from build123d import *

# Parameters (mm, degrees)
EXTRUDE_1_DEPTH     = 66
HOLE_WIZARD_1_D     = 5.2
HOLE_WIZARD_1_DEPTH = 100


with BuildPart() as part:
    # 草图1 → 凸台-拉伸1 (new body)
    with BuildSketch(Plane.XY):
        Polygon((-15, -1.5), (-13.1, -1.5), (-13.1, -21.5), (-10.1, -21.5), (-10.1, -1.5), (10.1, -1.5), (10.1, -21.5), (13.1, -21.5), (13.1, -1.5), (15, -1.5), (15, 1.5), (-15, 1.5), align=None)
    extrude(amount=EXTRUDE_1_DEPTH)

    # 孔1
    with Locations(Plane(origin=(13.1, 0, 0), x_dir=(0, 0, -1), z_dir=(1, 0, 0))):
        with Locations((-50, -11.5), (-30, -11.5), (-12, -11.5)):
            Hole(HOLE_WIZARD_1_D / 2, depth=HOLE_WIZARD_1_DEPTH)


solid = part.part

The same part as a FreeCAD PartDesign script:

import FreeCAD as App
import Part
import Sketcher

V = App.Vector
Q = App.Units.Quantity


def add_polygon(sketch, points):
    """Adds a closed chain of lines whose ends are joined by coincident constraints."""
    first, n = sketch.GeometryCount, len(points)
    for a, b in zip(points, points[1:] + points[:1]):
        sketch.addGeometry(Part.LineSegment(App.Vector(*a, 0), App.Vector(*b, 0)), False)
    for i in range(n):
        sketch.addConstraint(Sketcher.Constraint("Coincident", first + i, 2, first + (i + 1) % n, 1))

doc = App.newDocument("Part")
body = doc.addObject("PartDesign::Body", "Body")

sketch1 = body.newObject("Sketcher::SketchObject", "Sketch")
sketch1.AttachmentSupport = (doc.getObject("XY_Plane"), [""])
sketch1.MapMode = "FlatFace"
add_polygon(sketch1, [(-15, -1.5), (-13.1, -1.5), (-13.1, -21.5), (-10.1, -21.5), (-10.1, -1.5), (10.1, -1.5), (10.1, -21.5), (13.1, -21.5), (13.1, -1.5), (15, -1.5), (15, 1.5), (-15, 1.5)])
sketch1.addConstraint(Sketcher.Constraint("Horizontal", 0))
sketch1.addConstraint(Sketcher.Constraint("Vertical", 1))
sketch1.addConstraint(Sketcher.Constraint("Horizontal", 2))
sketch1.addConstraint(Sketcher.Constraint("Vertical", 3))
sketch1.addConstraint(Sketcher.Constraint("Horizontal", 4))
sketch1.addConstraint(Sketcher.Constraint("Vertical", 5))
sketch1.addConstraint(Sketcher.Constraint("Horizontal", 6))
sketch1.addConstraint(Sketcher.Constraint("Vertical", 7))
sketch1.addConstraint(Sketcher.Constraint("Horizontal", 8))
sketch1.addConstraint(Sketcher.Constraint("Vertical", 9))
sketch1.addConstraint(Sketcher.Constraint("Horizontal", 10))
sketch1.addConstraint(Sketcher.Constraint("Vertical", 11))
sketch1.addConstraint(Sketcher.Constraint("Symmetric", 8, 2, 10, 2, -1, 1))
sketch1.addConstraint(Sketcher.Constraint("Symmetric", 2, 2, 5, 2, -2))
sketch1.addConstraint(Sketcher.Constraint("Symmetric", 0, 2, 7, 2, -2))
sketch1.addConstraint(Sketcher.Constraint("Horizontal", 0, 2, 3, 2))
sketch1.addConstraint(Sketcher.Constraint("Equal", 6, 9))
sketch1.addConstraint(Sketcher.Constraint("DistanceX", 2, 1, 2, 2, Q("3 mm")))
sketch1.addConstraint(Sketcher.Constraint("DistanceX", 10, 2, 10, 1, Q("30 mm")))
sketch1.addConstraint(Sketcher.Constraint("DistanceY", 1, 2, 1, 1, Q("20 mm")))
sketch1.addConstraint(Sketcher.Constraint("DistanceX", 0, 1, 0, 2, Q("1.9 mm")))
pad1 = body.newObject("PartDesign::Pad", "Pad")
pad1.Profile = sketch1
pad1.Length = 66

sketch2 = body.newObject("Sketcher::SketchObject", "Sketch001")
sketch2.AttachmentSupport = (doc.getObject("YZ_Plane"), [""])
sketch2.MapMode = "FlatFace"
sketch2.AttachmentOffset = App.Placement(V(0, 0, 13.1), App.Rotation())
sketch2.addGeometry(Part.Circle(V(-11.5, 50, 0), V(0, 0, 1), 2.6), False)
sketch2.addGeometry(Part.Circle(V(-11.5, 30, 0), V(0, 0, 1), 2.6), False)
sketch2.addGeometry(Part.Circle(V(-11.5, 12, 0), V(0, 0, 1), 2.6), False)
sketch2.addConstraint(Sketcher.Constraint("Equal", 0, 1))
sketch2.addConstraint(Sketcher.Constraint("Equal", 1, 2))
sketch2.addConstraint(Sketcher.Constraint("Vertical", 0, 3, 1, 3))
sketch2.addConstraint(Sketcher.Constraint("Vertical", 1, 3, 2, 3))
sketch2.addConstraint(Sketcher.Constraint("Diameter", 0, Q("5.2 mm")))
sketch2.addConstraint(Sketcher.Constraint("DistanceY", -1, 1, 0, 3, Q("50 mm")))
sketch2.addConstraint(Sketcher.Constraint("DistanceY", -1, 1, 1, 3, Q("30 mm")))
sketch2.addConstraint(Sketcher.Constraint("DistanceY", -1, 1, 2, 3, Q("12 mm")))
sketch2.addConstraint(Sketcher.Constraint("DistanceX", 0, 3, -1, 1, Q("11.5 mm")))
doc.recompute()
hole = body.newObject("PartDesign::Hole", "Hole")
hole.Profile = sketch2
hole.ThreadType = "None"
hole.Diameter = 5.2
hole.DepthType = "Dimension"
hole.Depth = 100
hole.DrillPoint = "Flat"

doc.recompute()
